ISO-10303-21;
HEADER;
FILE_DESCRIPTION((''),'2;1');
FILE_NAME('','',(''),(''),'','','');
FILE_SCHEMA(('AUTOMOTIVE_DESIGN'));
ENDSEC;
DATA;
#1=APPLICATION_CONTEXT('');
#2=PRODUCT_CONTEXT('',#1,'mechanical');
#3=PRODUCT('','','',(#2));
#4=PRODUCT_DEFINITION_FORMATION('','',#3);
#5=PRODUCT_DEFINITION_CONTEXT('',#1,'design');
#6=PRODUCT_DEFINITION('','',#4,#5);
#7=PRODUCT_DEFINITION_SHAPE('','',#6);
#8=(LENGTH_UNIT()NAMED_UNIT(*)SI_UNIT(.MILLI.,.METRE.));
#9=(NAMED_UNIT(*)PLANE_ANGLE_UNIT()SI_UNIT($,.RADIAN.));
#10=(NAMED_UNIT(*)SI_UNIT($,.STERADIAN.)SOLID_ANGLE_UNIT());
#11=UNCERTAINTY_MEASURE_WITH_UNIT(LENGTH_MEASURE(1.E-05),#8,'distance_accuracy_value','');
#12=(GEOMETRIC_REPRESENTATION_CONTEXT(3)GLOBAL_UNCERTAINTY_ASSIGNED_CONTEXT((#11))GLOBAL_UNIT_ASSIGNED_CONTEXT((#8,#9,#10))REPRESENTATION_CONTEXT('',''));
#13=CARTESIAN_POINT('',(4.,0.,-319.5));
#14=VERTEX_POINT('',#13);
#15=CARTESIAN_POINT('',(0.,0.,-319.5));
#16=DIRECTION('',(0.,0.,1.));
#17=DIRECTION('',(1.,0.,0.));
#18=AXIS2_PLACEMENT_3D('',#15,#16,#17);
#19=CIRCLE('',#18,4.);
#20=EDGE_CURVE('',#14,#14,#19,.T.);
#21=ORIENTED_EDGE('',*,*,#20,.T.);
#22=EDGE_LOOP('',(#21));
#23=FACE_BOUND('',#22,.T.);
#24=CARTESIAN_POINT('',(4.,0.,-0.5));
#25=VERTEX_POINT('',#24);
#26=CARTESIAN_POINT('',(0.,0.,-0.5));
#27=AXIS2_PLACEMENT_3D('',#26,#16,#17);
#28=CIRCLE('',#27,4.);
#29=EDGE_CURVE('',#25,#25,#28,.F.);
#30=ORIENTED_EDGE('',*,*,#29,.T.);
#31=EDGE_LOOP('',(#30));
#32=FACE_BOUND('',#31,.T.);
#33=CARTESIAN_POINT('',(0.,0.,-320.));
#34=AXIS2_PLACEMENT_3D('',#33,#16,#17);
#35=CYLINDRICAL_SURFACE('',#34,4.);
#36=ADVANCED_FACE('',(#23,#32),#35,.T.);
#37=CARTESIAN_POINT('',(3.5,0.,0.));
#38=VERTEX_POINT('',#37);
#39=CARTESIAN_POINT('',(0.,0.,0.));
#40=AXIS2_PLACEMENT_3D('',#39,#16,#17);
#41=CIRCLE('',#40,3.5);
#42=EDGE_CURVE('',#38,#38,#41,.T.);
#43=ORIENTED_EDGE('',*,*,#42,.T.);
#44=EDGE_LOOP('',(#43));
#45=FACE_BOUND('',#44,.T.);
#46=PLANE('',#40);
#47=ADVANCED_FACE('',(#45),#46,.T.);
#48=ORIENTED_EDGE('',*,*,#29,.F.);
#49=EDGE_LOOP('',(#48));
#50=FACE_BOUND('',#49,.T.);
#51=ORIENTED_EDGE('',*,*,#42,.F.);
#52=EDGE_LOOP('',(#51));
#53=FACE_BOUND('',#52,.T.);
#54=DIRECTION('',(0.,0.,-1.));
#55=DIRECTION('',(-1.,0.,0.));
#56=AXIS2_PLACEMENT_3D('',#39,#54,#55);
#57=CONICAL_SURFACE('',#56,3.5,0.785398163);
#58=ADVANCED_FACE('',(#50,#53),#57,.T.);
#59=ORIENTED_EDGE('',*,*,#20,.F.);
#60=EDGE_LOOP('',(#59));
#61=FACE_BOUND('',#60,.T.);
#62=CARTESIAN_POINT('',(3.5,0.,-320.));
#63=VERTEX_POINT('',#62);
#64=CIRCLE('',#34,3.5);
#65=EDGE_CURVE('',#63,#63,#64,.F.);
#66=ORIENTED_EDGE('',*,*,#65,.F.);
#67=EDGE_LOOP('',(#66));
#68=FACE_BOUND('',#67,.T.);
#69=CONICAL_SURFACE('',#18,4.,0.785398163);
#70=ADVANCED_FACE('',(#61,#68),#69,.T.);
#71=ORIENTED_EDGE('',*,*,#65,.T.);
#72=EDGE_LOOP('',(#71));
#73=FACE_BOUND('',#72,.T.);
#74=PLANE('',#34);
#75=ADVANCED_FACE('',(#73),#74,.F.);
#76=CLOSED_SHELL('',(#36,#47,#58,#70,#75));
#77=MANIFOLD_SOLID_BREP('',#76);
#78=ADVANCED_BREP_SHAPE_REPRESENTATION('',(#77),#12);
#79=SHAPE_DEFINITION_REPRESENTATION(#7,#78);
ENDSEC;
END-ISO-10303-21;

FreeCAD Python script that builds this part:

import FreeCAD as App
import Part
import Sketcher
from FreeCAD import Vector
Q = App.Units.Quantity


def edges_at(feature, points):
    """Names of the edges that pass closest to the given points."""
    edges = feature.Shape.Edges
    near = lambda p: min(range(len(edges)), key=lambda i: edges[i].distToShape(Part.Vertex(*p))[0])
    return sorted({f"Edge{near(p) + 1}" for p in points})

doc = App.newDocument("Part")
params = doc.addObject("Spreadsheet::Sheet", "Params")
for row, (alias, value) in enumerate([
    ("sketch1_diameter", "8 mm"),
    ("pad1_length", "320 mm"),
    ("chamfer_size", "0.5 mm"),
], start=1):
    params.set(f"A{row}", alias)
    params.set(f"B{row}", "=" + value)
    params.setAlias(f"B{row}", alias)

body = doc.addObject("PartDesign::Body", "Body")

# Sketch on XY plane
sketch1 = doc.addObject("Sketcher::SketchObject", "Sketch")
body.addObject(sketch1)
sketch1.AttachmentSupport = (doc.XY_Plane, [""])
sketch1.MapMode = "FlatFace"
sketch1.addGeometry(Part.Circle(Vector(0, 0, 0), Vector(0, 0, 1), 4), False)
sketch1.addConstraint([
    Sketcher.Constraint("Coincident", 0, 3, -1, 1),
    Sketcher.Constraint("Diameter", 0, Q("8 mm")),
])
sketch1.setExpression("Constraints[1]", "Params.sketch1_diameter")
pad1 = doc.addObject("PartDesign::Pad", "Pad")
body.addObject(pad1)
pad1.Profile = sketch1
pad1.setExpression("Length", "Params.pad1_length")
pad1.Reversed = True
doc.recompute()

chamfer = doc.addObject("PartDesign::Chamfer", "Chamfer")
body.addObject(chamfer)
chamfer.Base = (pad1, edges_at(pad1, [(-4, 0, 0), (-4, 0, -320)]))
chamfer.setExpression("Size", "Params.chamfer_size")

doc.recompute()
